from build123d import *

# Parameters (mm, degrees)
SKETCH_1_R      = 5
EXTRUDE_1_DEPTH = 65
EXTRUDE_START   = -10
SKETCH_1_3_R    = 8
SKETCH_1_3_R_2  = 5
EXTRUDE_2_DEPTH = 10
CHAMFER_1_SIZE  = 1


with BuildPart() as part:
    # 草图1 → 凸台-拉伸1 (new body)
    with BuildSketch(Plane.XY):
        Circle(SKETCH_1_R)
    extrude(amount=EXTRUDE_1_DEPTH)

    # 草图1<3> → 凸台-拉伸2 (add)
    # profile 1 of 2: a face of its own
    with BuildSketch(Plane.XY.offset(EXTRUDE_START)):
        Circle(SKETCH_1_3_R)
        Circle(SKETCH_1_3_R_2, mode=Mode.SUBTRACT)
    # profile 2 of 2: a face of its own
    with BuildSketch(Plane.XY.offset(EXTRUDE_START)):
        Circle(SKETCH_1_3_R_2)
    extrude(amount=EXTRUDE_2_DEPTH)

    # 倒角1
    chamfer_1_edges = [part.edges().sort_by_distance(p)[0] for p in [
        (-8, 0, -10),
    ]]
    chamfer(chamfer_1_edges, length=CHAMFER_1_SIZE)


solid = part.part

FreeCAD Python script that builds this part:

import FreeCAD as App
import Part
import Sketcher

V = App.Vector
Q = App.Units.Quantity


def edges_at(feature, points):
    """Names of the edges that pass closest to the given points."""
    edges = feature.Shape.Edges
    near = lambda p: min(range(len(edges)), key=lambda i: edges[i].distToShape(Part.Vertex(*p))[0])
    return sorted({f"Edge{near(p) + 1}" for p in points})

doc = App.newDocument("Part")
body = doc.addObject("PartDesign::Body", "Body")

sketch1 = doc.addObject("Sketcher::SketchObject", "Sketch")
body.addObject(sketch1)
sketch1.AttachmentSupport = (doc.XY_Plane, [""])
sketch1.MapMode = "FlatFace"
sketch1.addGeometry(Part.Circle(V(0, 0, 0), V(0, 0, 1), 5), False)
sketch1.addConstraint([
    Sketcher.Constraint("Coincident", 0, 3, -1, 1),
    Sketcher.Constraint("Diameter", 0, Q("10 mm")),
])
pad1 = doc.addObject("PartDesign::Pad", "Pad")
body.addObject(pad1)
pad1.Profile = sketch1
pad1.Length = 65

sketch2 = doc.addObject("Sketcher::SketchObject", "Sketch001")
body.addObject(sketch2)
sketch2.AttachmentSupport = (doc.XY_Plane, [""])
sketch2.MapMode = "FlatFace"
sketch2.AttachmentOffset = App.Placement(V(0, 0, -10), App.Rotation())
sketch2.addGeometry(Part.Circle(V(0, 0, 0), V(0, 0, 1), 8), False)
sketch2.addConstraint([
    Sketcher.Constraint("Coincident", 0, 3, -1, 1),
    Sketcher.Constraint("Diameter", 0, Q("16 mm")),
])
pad2 = doc.addObject("PartDesign::Pad", "Pad001")
body.addObject(pad2)
pad2.Profile = sketch2
pad2.Length = 10
doc.recompute()

chamfer = doc.addObject("PartDesign::Chamfer", "Chamfer")
body.addObject(chamfer)
chamfer.Base = (pad2, edges_at(pad2, [(-8, 0, -10)]))
chamfer.Size = 1

doc.recompute()
